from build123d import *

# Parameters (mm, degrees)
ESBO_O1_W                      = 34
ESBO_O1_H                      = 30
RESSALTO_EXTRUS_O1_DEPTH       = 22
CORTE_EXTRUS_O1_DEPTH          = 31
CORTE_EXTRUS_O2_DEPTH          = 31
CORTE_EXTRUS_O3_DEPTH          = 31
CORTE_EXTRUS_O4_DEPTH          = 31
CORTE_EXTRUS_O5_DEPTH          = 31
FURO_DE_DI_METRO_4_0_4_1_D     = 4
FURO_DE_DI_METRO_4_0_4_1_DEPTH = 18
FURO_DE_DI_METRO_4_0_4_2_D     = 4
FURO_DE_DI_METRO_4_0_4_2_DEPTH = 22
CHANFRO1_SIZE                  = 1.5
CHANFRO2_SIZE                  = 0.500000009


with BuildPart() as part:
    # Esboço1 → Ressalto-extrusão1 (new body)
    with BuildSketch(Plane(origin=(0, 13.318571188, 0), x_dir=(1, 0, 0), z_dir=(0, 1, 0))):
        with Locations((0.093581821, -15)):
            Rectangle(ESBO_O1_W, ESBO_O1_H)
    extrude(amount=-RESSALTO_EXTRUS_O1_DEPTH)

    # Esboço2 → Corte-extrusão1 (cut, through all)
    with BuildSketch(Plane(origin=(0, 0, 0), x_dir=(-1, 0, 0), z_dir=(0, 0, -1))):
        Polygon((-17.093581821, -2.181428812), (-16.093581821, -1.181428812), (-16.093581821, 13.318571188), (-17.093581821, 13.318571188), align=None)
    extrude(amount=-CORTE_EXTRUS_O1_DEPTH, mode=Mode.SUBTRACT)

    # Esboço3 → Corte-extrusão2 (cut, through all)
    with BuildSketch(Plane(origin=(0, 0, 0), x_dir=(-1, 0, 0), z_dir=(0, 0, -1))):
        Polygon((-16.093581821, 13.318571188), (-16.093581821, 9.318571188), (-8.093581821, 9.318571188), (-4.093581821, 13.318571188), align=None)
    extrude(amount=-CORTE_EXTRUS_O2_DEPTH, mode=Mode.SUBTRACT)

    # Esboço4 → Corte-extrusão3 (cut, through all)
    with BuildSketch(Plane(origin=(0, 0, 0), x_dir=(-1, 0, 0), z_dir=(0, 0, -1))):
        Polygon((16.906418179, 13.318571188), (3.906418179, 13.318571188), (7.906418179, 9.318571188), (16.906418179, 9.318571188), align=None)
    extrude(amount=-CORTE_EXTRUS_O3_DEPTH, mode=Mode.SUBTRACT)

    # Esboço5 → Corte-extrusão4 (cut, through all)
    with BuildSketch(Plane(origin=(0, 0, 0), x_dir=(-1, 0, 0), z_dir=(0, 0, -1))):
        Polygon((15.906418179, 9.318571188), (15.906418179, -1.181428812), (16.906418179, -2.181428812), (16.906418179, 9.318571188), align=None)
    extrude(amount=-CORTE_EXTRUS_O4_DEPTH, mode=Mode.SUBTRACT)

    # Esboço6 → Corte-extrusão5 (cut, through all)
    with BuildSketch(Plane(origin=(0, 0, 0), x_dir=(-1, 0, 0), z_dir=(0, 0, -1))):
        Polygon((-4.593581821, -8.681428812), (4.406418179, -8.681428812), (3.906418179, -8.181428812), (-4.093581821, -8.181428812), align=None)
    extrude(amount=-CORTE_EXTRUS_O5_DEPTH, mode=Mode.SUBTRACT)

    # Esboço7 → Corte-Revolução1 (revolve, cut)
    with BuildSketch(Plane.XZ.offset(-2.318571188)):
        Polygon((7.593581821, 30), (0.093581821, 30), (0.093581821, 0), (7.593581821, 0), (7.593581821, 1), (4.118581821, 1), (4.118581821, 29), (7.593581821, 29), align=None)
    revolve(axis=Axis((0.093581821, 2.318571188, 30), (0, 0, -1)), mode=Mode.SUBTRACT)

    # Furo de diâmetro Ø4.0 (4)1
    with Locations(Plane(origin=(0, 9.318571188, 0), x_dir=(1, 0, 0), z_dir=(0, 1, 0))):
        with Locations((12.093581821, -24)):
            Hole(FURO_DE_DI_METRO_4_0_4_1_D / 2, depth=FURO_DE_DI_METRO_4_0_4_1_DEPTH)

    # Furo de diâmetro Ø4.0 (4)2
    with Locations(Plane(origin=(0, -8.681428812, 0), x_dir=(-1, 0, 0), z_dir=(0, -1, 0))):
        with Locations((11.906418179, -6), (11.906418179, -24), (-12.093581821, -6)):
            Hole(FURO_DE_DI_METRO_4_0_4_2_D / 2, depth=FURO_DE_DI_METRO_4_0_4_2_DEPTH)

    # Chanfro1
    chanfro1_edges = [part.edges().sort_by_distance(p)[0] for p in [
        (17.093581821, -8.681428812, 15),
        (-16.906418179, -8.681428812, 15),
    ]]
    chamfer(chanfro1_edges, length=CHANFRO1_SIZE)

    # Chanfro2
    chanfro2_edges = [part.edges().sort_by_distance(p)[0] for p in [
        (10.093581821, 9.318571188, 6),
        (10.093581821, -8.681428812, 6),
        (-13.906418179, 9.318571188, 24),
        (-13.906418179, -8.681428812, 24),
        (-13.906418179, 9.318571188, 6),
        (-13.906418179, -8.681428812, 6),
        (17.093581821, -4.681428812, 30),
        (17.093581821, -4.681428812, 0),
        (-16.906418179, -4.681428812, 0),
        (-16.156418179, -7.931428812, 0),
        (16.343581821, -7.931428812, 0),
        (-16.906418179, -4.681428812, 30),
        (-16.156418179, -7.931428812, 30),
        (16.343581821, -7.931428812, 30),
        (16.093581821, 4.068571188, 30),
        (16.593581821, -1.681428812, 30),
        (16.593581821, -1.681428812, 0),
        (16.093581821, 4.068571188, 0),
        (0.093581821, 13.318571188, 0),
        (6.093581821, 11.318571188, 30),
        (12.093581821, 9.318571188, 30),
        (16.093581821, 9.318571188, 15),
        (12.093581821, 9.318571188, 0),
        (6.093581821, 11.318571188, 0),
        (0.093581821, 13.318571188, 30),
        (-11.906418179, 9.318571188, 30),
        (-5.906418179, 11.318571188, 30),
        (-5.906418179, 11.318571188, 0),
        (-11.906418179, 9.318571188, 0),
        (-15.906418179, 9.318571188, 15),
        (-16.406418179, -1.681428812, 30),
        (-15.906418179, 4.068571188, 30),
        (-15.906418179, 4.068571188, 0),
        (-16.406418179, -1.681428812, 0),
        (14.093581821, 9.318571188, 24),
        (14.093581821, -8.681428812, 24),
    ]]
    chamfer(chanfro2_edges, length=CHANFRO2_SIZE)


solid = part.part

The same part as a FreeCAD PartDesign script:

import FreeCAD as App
import Part
import Sketcher
Q = App.Units.Quantity


def edges_at(feature, points):
    """Names of the edges that pass closest to the given points."""
    edges = feature.Shape.Edges
    near = lambda p: min(range(len(edges)), key=lambda i: edges[i].distToShape(Part.Vertex(*p))[0])
    return sorted({f"Edge{near(p) + 1}" for p in points})


def add_polygon(sketch, points):
    """Adds a closed chain of lines whose ends are joined by coincident constraints."""
    first, n = sketch.GeometryCount, len(points)
    for a, b in zip(points, points[1:] + points[:1]):
        sketch.addGeometry(Part.LineSegment(App.Vector(*a, 0), App.Vector(*b, 0)), False)
    for i in range(n):
        sketch.addConstraint(Sketcher.Constraint("Coincident", first + i, 2, first + (i + 1) % n, 1))

doc = App.newDocument("Part")
body = doc.addObject("PartDesign::Body", "Body")

# Sketch on XZ plane
sketch1 = doc.addObject("Sketcher::SketchObject", "Sketch")
body.addObject(sketch1)
sketch1.AttachmentSupport = (doc.XZ_Plane, [""])
sketch1.MapMode = "FlatFace"
sketch1.AttachmentOffset = App.Placement(App.Vector(0, 0, -13.318571), App.Rotation())
add_polygon(sketch1, [(-17, 0), (-17, 30), (17, 30), (17, 0)])  # lines 0-3
sketch1.addConstraint(Sketcher.Constraint("Vertical", 0))
sketch1.addConstraint(Sketcher.Constraint("Horizontal", 1))
sketch1.addConstraint(Sketcher.Constraint("Vertical", 2))
sketch1.addConstraint(Sketcher.Constraint("Horizontal", 3))
sketch1.addConstraint(Sketcher.Constraint("PointOnObject", 2, 2, -1))
sketch1.addConstraint(Sketcher.Constraint("DistanceX", 1, 1, 1, 2, 34.0))
sketch1.addConstraint(Sketcher.Constraint("DistanceY", 0, 1, 0, 2, 30.0))
sketch1.addConstraint(Sketcher.Constraint("DistanceX", 0, 2, -1, 1, 16.906418))
pad1 = doc.addObject("PartDesign::Pad", "Pad")
body.addObject(pad1)
pad1.Profile = sketch1
pad1.Length = 22

# Sketch on XY plane
sketch2 = doc.addObject("Sketcher::SketchObject", "Sketch001")
body.addObject(sketch2)
sketch2.AttachmentSupport = (doc.XY_Plane, [""])
sketch2.MapMode = "FlatFace"
add_polygon(sketch2, [(17.1, -2.2), (16.1, -1.2), (16.1, 13.3), (17.1, 13.3)])  # lines 0-3
sketch2.addConstraint(Sketcher.Constraint("Vertical", 1))
sketch2.addConstraint(Sketcher.Constraint("Horizontal", 2))
sketch2.addConstraint(Sketcher.Constraint("Vertical", 3))
sketch2.addConstraint(Sketcher.Constraint("DistanceX", 2, 1, 2, 2, 1.0))
sketch2.addConstraint(Sketcher.Constraint("Angle", 0, Q("135 deg")))
sketch2.addConstraint(Sketcher.Constraint("DistanceY", 1, 1, 1, 2, 14.5))
sketch2.addConstraint(Sketcher.Constraint("DistanceX", -1, 1, 0, 2, 16.093582))
sketch2.addConstraint(Sketcher.Constraint("DistanceY", 0, 2, -1, 1, 1.181429))
pocket1 = doc.addObject("PartDesign::Pocket", "Pocket")
body.addObject(pocket1)
pocket1.Profile = sketch2
pocket1.Type = "ThroughAll"
pocket1.Reversed = True

# Sketch on XY plane
sketch3 = doc.addObject("Sketcher::SketchObject", "Sketch002")
body.addObject(sketch3)
sketch3.AttachmentSupport = (doc.XY_Plane, [""])
sketch3.MapMode = "FlatFace"
add_polygon(sketch3, [(16.1, 13.3), (16.1, 9.3), (8.1, 9.3), (4.1, 13.3)])  # lines 0-3
sketch3.addConstraint(Sketcher.Constraint("Vertical", 0))
sketch3.addConstraint(Sketcher.Constraint("Horizontal", 1))
sketch3.addConstraint(Sketcher.Constraint("Horizontal", 3))
sketch3.addConstraint(Sketcher.Constraint("DistanceX", 1, 2, 1, 1, 8.0))
sketch3.addConstraint(Sketcher.Constraint("DistanceX", 3, 1, 3, 2, 12.0))
sketch3.addConstraint(Sketcher.Constraint("DistanceY", 0, 2, 0, 1, 4.0))
sketch3.addConstraint(Sketcher.Constraint("DistanceX", -1, 1, 0, 2, 16.093582))
sketch3.addConstraint(Sketcher.Constraint("DistanceY", -1, 1, 0, 2, 9.318571))
pocket2 = doc.addObject("PartDesign::Pocket", "Pocket001")
body.addObject(pocket2)
pocket2.Profile = sketch3
pocket2.Type = "ThroughAll"
pocket2.Reversed = True

# Sketch on XY plane
sketch4 = doc.addObject("Sketcher::SketchObject", "Sketch003")
body.addObject(sketch4)
sketch4.AttachmentSupport = (doc.XY_Plane, [""])
sketch4.MapMode = "FlatFace"
add_polygon(sketch4, [(-16.9, 13.3), (-3.9, 13.3), (-7.9, 9.3), (-16.9, 9.3)])  # lines 0-3
sketch4.addConstraint(Sketcher.Constraint("Horizontal", 0))
sketch4.addConstraint(Sketcher.Constraint("Horizontal", 2))
sketch4.addConstraint(Sketcher.Constraint("Vertical", 3))
sketch4.addConstraint(Sketcher.Constraint("DistanceX", 0, 1, 0, 2, 13.0))
sketch4.addConstraint(Sketcher.Constraint("DistanceX", 2, 2, 2, 1, 9.0))
sketch4.addConstraint(Sketcher.Constraint("DistanceY", 3, 1, 3, 2, 4.0))
sketch4.addConstraint(Sketcher.Constraint("DistanceX", 0, 2, -1, 1, 3.906418))
sketch4.addConstraint(Sketcher.Constraint("DistanceY", -1, 1, 0, 2, 13.318571))
pocket3 = doc.addObject("PartDesign::Pocket", "Pocket002")
body.addObject(pocket3)
pocket3.Profile = sketch4
pocket3.Type = "ThroughAll"
pocket3.Reversed = True

# Sketch on XY plane
sketch5 = doc.addObject("Sketcher::SketchObject", "Sketch004")
body.addObject(sketch5)
sketch5.AttachmentSupport = (doc.XY_Plane, [""])
sketch5.MapMode = "FlatFace"
add_polygon(sketch5, [(-15.9, 9.3), (-15.9, -1.2), (-16.9, -2.2), (-16.9, 9.3)])  # lines 0-3
sketch5.addConstraint(Sketcher.Constraint("Vertical", 0))
sketch5.addConstraint(Sketcher.Constraint("Vertical", 2))
sketch5.addConstraint(Sketcher.Constraint("Horizontal", 3))
sketch5.addConstraint(Sketcher.Constraint("DistanceX", 3, 1, 3, 2, 1.0))
sketch5.addConstraint(Sketcher.Constraint("Angle", 1, Q("-135 deg")))
sketch5.addConstraint(Sketcher.Constraint("DistanceY", 0, 2, 0, 1, 10.5))
sketch5.addConstraint(Sketcher.Constraint("DistanceX", 0, 2, -1, 1, 15.906418))
sketch5.addConstraint(Sketcher.Constraint("DistanceY", 0, 2, -1, 1, 1.181429))
pocket4 = doc.addObject("PartDesign::Pocket", "Pocket003")
body.addObject(pocket4)
pocket4.Profile = sketch5
pocket4.Type = "ThroughAll"
pocket4.Reversed = True

# Sketch on XY plane
sketch6 = doc.addObject("Sketcher::SketchObject", "Sketch005")
body.addObject(sketch6)
sketch6.AttachmentSupport = (doc.XY_Plane, [""])
sketch6.MapMode = "FlatFace"
add_polygon(sketch6, [(4.6, -8.7), (-4.4, -8.7), (-3.9, -8.2), (4.1, -8.2)])  # lines 0-3
sketch6.addConstraint(Sketcher.Constraint("Horizontal", 0))
sketch6.addConstraint(Sketcher.Constraint("Horizontal", 2))
sketch6.addConstraint(Sketcher.Constraint("Perpendicular", 1, 3))
sketch6.addConstraint(Sketcher.Constraint("Equal", 1, 3))
sketch6.addConstraint(Sketcher.Constraint("DistanceX", 0, 2, 0, 1, 9.0))
sketch6.addConstraint(Sketcher.Constraint("DistanceX", 2, 1, 2, 2, 8.0))
sketch6.addConstraint(Sketcher.Constraint("DistanceX", 0, 2, -1, 1, 4.406418))
sketch6.addConstraint(Sketcher.Constraint("DistanceY", 0, 2, -1, 1, 8.681429))
pocket5 = doc.addObject("PartDesign::Pocket", "Pocket004")
body.addObject(pocket5)
pocket5.Profile = sketch6
pocket5.Type = "ThroughAll"
pocket5.Reversed = True

# Sketch on XZ plane
sketch7 = doc.addObject("Sketcher::SketchObject", "Sketch006")
body.addObject(sketch7)
sketch7.AttachmentSupport = (doc.XZ_Plane, [""])
sketch7.MapMode = "FlatFace"
sketch7.AttachmentOffset = App.Placement(App.Vector(0, 0, -2.318571), App.Rotation())
add_polygon(sketch7, [(7.6, 30), (0.1, 30), (0.1, 0), (7.6, 0), (7.6, 1), (4.1, 1), (4.1, 29), (7.6, 29)])  # lines 0-7
sketch7.addGeometry(Part.LineSegment(App.Vector(0.1, 30, 0), App.Vector(0.1, 0, 0)), True)  # axis
sketch7.addConstraint(Sketcher.Constraint("Horizontal", 0))
sketch7.addConstraint(Sketcher.Constraint("Vertical", 1))
sketch7.addConstraint(Sketcher.Constraint("Horizontal", 2))
sketch7.addConstraint(Sketcher.Constraint("Vertical", 3))
sketch7.addConstraint(Sketcher.Constraint("Horizontal", 4))
sketch7.addConstraint(Sketcher.Constraint("Vertical", 5))
sketch7.addConstraint(Sketcher.Constraint("Horizontal", 6))
sketch7.addConstraint(Sketcher.Constraint("Vertical", 7))
sketch7.addConstraint(Sketcher.Constraint("Vertical", 8))
sketch7.addConstraint(Sketcher.Constraint("Coincident", 8, 1, 0, 2))
sketch7.addConstraint(Sketcher.Constraint("PointOnObject", 1, 2, -1))
sketch7.addConstraint(Sketcher.Constraint("PointOnObject", 8, 2, -1))
sketch7.addConstraint(Sketcher.Constraint("Vertical", 3, 2, 6, 2))
sketch7.addConstraint(Sketcher.Constraint("Equal", 3, 7))
sketch7.addConstraint(Sketcher.Constraint("DistanceY", 1, 2, 1, 1, 30.0))
sketch7.addConstraint(Sketcher.Constraint("DistanceY", 3, 1, 3, 2, 1.0))
sketch7.addConstraint(Sketcher.Constraint("DistanceX", 0, 2, 0, 1, 7.5))
sketch7.addConstraint(Sketcher.Constraint("DistanceX", 4, 2, 4, 1, 3.475))
sketch7.addConstraint(Sketcher.Constraint("DistanceX", -1, 1, 0, 2, 0.093582))
groove = doc.addObject("PartDesign::Groove", "Groove")
body.addObject(groove)
groove.Profile = sketch7
groove.ReferenceAxis = (sketch7, ["Axis0"])
groove.Angle = 360

# Sketch on XZ plane
sketch8 = doc.addObject("Sketcher::SketchObject", "Sketch007")
body.addObject(sketch8)
sketch8.AttachmentSupport = (doc.XZ_Plane, [""])
sketch8.MapMode = "FlatFace"
sketch8.AttachmentOffset = App.Placement(App.Vector(0, 0, -9.318571), App.Rotation())
sketch8.addGeometry(Part.Circle(App.Vector(12.1, 24, 0), App.Vector(0, 0, 1), 2), False)
sketch8.addConstraint(Sketcher.Constraint("Diameter", 0, 4.0))
sketch8.addConstraint(Sketcher.Constraint("DistanceY", -1, 1, 0, 3, 24.0))
sketch8.addConstraint(Sketcher.Constraint("DistanceX", -1, 1, 0, 3, 12.093582))
doc.recompute()
hole = doc.addObject("PartDesign::Hole", "Hole")
body.addObject(hole)
hole.Profile = sketch8
hole.ThreadType = "None"
hole.Diameter = 4
hole.DepthType = "Dimension"
hole.Depth = 18
hole.DrillPoint = "Flat"
hole.Reversed = True

# Sketch on XZ plane
sketch9 = doc.addObject("Sketcher::SketchObject", "Sketch008")
body.addObject(sketch9)
sketch9.AttachmentSupport = (doc.XZ_Plane, [""])
sketch9.MapMode = "FlatFace"
sketch9.AttachmentOffset = App.Placement(App.Vector(0, 0, 8.681429), App.Rotation())
sketch9.addGeometry(Part.Circle(App.Vector(-11.9, 6, 0), App.Vector(0, 0, 1), 2), False)
sketch9.addGeometry(Part.Circle(App.Vector(-11.9, 24, 0), App.Vector(0, 0, 1), 2), False)
sketch9.addGeometry(Part.Circle(App.Vector(12.1, 6, 0), App.Vector(0, 0, 1), 2), False)
sketch9.addConstraint(Sketcher.Constraint("Equal", 0, 1))
sketch9.addConstraint(Sketcher.Constraint("Equal", 1, 2))
sketch9.addConstraint(Sketcher.Constraint("Horizontal", 0, 3, 2, 3))
sketch9.addConstraint(Sketcher.Constraint("Vertical", 0, 3, 1, 3))
sketch9.addConstraint(Sketcher.Constraint("Diameter", 0, 4.0))
sketch9.addConstraint(Sketcher.Constraint("DistanceY", -1, 1, 0, 3, 6.0))
sketch9.addConstraint(Sketcher.Constraint("DistanceY", -1, 1, 1, 3, 24.0))
sketch9.addConstraint(Sketcher.Constraint("DistanceX", 0, 3, 2, 3, 24.0))
sketch9.addConstraint(Sketcher.Constraint("DistanceX", 0, 3, -1, 1, 11.906418))
doc.recompute()
hole2 = doc.addObject("PartDesign::Hole", "Hole001")
body.addObject(hole2)
hole2.Profile = sketch9
hole2.ThreadType = "None"
hole2.Diameter = 4
hole2.DepthType = "Dimension"
hole2.Depth = 22
hole2.DrillPoint = "Flat"
doc.recompute()

chamfer = doc.addObject("PartDesign::Chamfer", "Chamfer")
body.addObject(chamfer)
chamfer.Base = (hole2, edges_at(hole2, [(17.094, -8.681, 15), (-16.906, -8.681, 15)]))
chamfer.Size = 1.5
doc.recompute()

chamfer2 = doc.addObject("PartDesign::Chamfer", "Chamfer001")
body.addObject(chamfer2)
chamfer2.Base = (chamfer, edges_at(chamfer, [
    (10.094, 9.319, 6),
    (10.094, -8.681, 6),
    (-13.906, 9.319, 24),
    (-13.906, -8.681, 24),
    (-13.906, 9.319, 6),
    (-13.906, -8.681, 6),
    (17.094, -4.681, 30),
    (17.094, -4.681, 0),
    (-16.906, -4.681, 0),
    (-16.156, -7.931, 0),
    (16.344, -7.931, 0),
    (-16.906, -4.681, 30),
    (-16.156, -7.931, 30),
    (16.344, -7.931, 30),
    (16.094, 4.069, 30),
    (16.594, -1.681, 30),
    (16.594, -1.681, 0),
    (16.094, 4.069, 0),
    (0.094, 13.319, 0),
    (6.094, 11.319, 30),
    (12.094, 9.319, 30),
    (16.094, 9.319, 15),
    (12.094, 9.319, 0),
    (6.094, 11.319, 0),
    (0.094, 13.319, 30),
    (-11.906, 9.319, 30),
    (-5.906, 11.319, 30),
    (-5.906, 11.319, 0),
    (-11.906, 9.319, 0),
    (-15.906, 9.319, 15),
    (-16.406, -1.681, 30),
    (-15.906, 4.069, 30),
    (-15.906, 4.069, 0),
    (-16.406, -1.681, 0),
    (14.094, 9.319, 24),
    (14.094, -8.681, 24),
]))
chamfer2.Size = 0.5

doc.recompute()
